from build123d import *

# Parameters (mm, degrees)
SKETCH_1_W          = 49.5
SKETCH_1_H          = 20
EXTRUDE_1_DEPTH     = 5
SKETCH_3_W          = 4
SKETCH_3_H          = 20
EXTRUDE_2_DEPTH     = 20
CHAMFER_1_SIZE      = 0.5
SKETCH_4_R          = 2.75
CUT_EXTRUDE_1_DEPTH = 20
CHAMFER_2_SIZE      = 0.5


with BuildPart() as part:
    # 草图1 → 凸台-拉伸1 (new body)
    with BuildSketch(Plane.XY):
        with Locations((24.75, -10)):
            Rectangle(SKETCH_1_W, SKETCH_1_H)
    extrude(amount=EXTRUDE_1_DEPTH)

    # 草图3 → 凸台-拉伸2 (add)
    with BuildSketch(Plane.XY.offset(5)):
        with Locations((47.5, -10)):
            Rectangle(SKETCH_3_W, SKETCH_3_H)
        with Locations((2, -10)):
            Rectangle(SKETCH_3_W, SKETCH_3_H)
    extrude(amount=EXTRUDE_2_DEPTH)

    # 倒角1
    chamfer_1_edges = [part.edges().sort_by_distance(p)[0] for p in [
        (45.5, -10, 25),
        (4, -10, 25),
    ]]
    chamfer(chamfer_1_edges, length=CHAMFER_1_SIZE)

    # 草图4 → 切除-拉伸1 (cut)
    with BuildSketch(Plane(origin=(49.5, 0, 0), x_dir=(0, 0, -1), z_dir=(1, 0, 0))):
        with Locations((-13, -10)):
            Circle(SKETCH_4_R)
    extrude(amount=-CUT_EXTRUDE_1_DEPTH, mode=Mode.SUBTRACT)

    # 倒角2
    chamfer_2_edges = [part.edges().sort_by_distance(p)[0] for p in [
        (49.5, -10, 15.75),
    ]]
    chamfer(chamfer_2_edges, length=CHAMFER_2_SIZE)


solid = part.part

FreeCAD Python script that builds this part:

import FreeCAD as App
import Part
import Sketcher
Q = App.Units.Quantity


def edges_at(feature, points):
    """Names of the edges that pass closest to the given points."""
    edges = feature.Shape.Edges
    near = lambda p: min(range(len(edges)), key=lambda i: edges[i].distToShape(Part.Vertex(*p))[0])
    return sorted({f"Edge{near(p) + 1}" for p in points})

doc = App.newDocument("Part")
body = doc.addObject("PartDesign::Body", "Body")

sketch1 = doc.addObject("Sketcher::SketchObject", "Sketch")
body.addObject(sketch1)
sketch1.AttachmentSupport = (doc.XY_Plane, [""])
sketch1.MapMode = "FlatFace"
sketch1.addGeometry(Part.LineSegment(App.Vector(0, 0, 0), App.Vector(0, -20, 0)), False)
sketch1.addGeometry(Part.LineSegment(App.Vector(0, -20, 0), App.Vector(50, -20, 0)), False)
sketch1.addGeometry(Part.LineSegment(App.Vector(50, -20, 0), App.Vector(50, 0, 0)), False)
sketch1.addGeometry(Part.LineSegment(App.Vector(50, 0, 0), App.Vector(0, 0, 0)), False)
sketch1.addConstraint(Sketcher.Constraint("Coincident", 0, 2, 1, 1))
sketch1.addConstraint(Sketcher.Constraint("Coincident", 1, 2, 2, 1))
sketch1.addConstraint(Sketcher.Constraint("Coincident", 2, 2, 3, 1))
sketch1.addConstraint(Sketcher.Constraint("Coincident", 3, 2, 0, 1))
sketch1.addConstraint(Sketcher.Constraint("Vertical", 0))
sketch1.addConstraint(Sketcher.Constraint("Horizontal", 1))
sketch1.addConstraint(Sketcher.Constraint("Vertical", 2))
sketch1.addConstraint(Sketcher.Constraint("Horizontal", 3))
sketch1.addConstraint(Sketcher.Constraint("Coincident", 3, 2, -1, 1))
sketch1.addConstraint(Sketcher.Constraint("DistanceY", 0, 2, 0, 1, Q("20 mm")))
sketch1.addConstraint(Sketcher.Constraint("DistanceX", 1, 1, 1, 2, Q("49.5 mm")))
pad1 = doc.addObject("PartDesign::Pad", "Pad")
body.addObject(pad1)
pad1.Profile = sketch1
pad1.Length = 5

sketch2 = doc.addObject("Sketcher::SketchObject", "Sketch001")
body.addObject(sketch2)
sketch2.AttachmentSupport = (doc.XY_Plane, [""])
sketch2.MapMode = "FlatFace"
sketch2.AttachmentOffset = App.Placement(App.Vector(0, 0, 5), App.Rotation())
sketch2.addGeometry(Part.LineSegment(App.Vector(45.5, 0, 0), App.Vector(45.5, -20, 0)), False)
sketch2.addGeometry(Part.LineSegment(App.Vector(45.5, -20, 0), App.Vector(49.5, -20, 0)), False)
sketch2.addGeometry(Part.LineSegment(App.Vector(49.5, -20, 0), App.Vector(49.5, 0, 0)), False)
sketch2.addGeometry(Part.LineSegment(App.Vector(49.5, 0, 0), App.Vector(45.5, 0, 0)), False)
sketch2.addGeometry(Part.LineSegment(App.Vector(0, 0, 0), App.Vector(0, -20, 0)), False)
sketch2.addGeometry(Part.LineSegment(App.Vector(0, -20, 0), App.Vector(4, -20, 0)), False)
sketch2.addGeometry(Part.LineSegment(App.Vector(4, -20, 0), App.Vector(4, 0, 0)), False)
sketch2.addGeometry(Part.LineSegment(App.Vector(4, 0, 0), App.Vector(0, 0, 0)), False)
sketch2.addConstraint(Sketcher.Constraint("Coincident", 0, 2, 1, 1))
sketch2.addConstraint(Sketcher.Constraint("Coincident", 1, 2, 2, 1))
sketch2.addConstraint(Sketcher.Constraint("Coincident", 2, 2, 3, 1))
sketch2.addConstraint(Sketcher.Constraint("Coincident", 3, 2, 0, 1))
sketch2.addConstraint(Sketcher.Constraint("Coincident", 4, 2, 5, 1))
sketch2.addConstraint(Sketcher.Constraint("Coincident", 5, 2, 6, 1))
sketch2.addConstraint(Sketcher.Constraint("Coincident", 6, 2, 7, 1))
sketch2.addConstraint(Sketcher.Constraint("Coincident", 7, 2, 4, 1))
sketch2.addConstraint(Sketcher.Constraint("Vertical", 0))
sketch2.addConstraint(Sketcher.Constraint("Horizontal", 1))
sketch2.addConstraint(Sketcher.Constraint("Vertical", 2))
sketch2.addConstraint(Sketcher.Constraint("Horizontal", 3))
sketch2.addConstraint(Sketcher.Constraint("Vertical", 4))
sketch2.addConstraint(Sketcher.Constraint("Horizontal", 5))
sketch2.addConstraint(Sketcher.Constraint("Vertical", 6))
sketch2.addConstraint(Sketcher.Constraint("Horizontal", 7))
sketch2.addConstraint(Sketcher.Constraint("Coincident", 7, 2, -1, 1))
sketch2.addConstraint(Sketcher.Constraint("PointOnObject", 2, 2, -1))
sketch2.addConstraint(Sketcher.Constraint("Horizontal", 1, 2, 4, 2))
sketch2.addConstraint(Sketcher.Constraint("Equal", 3, 5))
sketch2.addConstraint(Sketcher.Constraint("DistanceX", 1, 1, 1, 2, Q("4 mm")))
sketch2.addConstraint(Sketcher.Constraint("DistanceY", 0, 2, 0, 1, Q("20 mm")))
sketch2.addConstraint(Sketcher.Constraint("DistanceX", -1, 1, 0, 2, Q("45.5 mm")))
pad2 = doc.addObject("PartDesign::Pad", "Pad001")
body.addObject(pad2)
pad2.Profile = sketch2
pad2.Length = 20
doc.recompute()

chamfer = doc.addObject("PartDesign::Chamfer", "Chamfer")
body.addObject(chamfer)
chamfer.Base = (pad2, edges_at(pad2, [(45.5, -10, 25), (4, -10, 25)]))
chamfer.Size = 0.5

sketch3 = doc.addObject("Sketcher::SketchObject", "Sketch002")
body.addObject(sketch3)
sketch3.AttachmentSupport = (doc.YZ_Plane, [""])
sketch3.MapMode = "FlatFace"
sketch3.AttachmentOffset = App.Placement(App.Vector(0, 0, 49.5), App.Rotation())
sketch3.addGeometry(Part.Circle(App.Vector(-10, 13, 0), App.Vector(0, 0, 1), 2.8), False)
sketch3.addConstraint(Sketcher.Constraint("Diameter", 0, Q("5.5 mm")))
sketch3.addConstraint(Sketcher.Constraint("DistanceX", 0, 3, -1, 1, Q("10 mm")))
sketch3.addConstraint(Sketcher.Constraint("DistanceY", -1, 1, 0, 3, Q("13 mm")))
pocket1 = doc.addObject("PartDesign::Pocket", "Pocket")
body.addObject(pocket1)
pocket1.Profile = sketch3
pocket1.Length = 20
doc.recompute()

chamfer2 = doc.addObject("PartDesign::Chamfer", "Chamfer001")
body.addObject(chamfer2)
chamfer2.Base = (pocket1, edges_at(pocket1, [(49.5, -10, 15.75)]))
chamfer2.Size = 0.5

doc.recompute()
